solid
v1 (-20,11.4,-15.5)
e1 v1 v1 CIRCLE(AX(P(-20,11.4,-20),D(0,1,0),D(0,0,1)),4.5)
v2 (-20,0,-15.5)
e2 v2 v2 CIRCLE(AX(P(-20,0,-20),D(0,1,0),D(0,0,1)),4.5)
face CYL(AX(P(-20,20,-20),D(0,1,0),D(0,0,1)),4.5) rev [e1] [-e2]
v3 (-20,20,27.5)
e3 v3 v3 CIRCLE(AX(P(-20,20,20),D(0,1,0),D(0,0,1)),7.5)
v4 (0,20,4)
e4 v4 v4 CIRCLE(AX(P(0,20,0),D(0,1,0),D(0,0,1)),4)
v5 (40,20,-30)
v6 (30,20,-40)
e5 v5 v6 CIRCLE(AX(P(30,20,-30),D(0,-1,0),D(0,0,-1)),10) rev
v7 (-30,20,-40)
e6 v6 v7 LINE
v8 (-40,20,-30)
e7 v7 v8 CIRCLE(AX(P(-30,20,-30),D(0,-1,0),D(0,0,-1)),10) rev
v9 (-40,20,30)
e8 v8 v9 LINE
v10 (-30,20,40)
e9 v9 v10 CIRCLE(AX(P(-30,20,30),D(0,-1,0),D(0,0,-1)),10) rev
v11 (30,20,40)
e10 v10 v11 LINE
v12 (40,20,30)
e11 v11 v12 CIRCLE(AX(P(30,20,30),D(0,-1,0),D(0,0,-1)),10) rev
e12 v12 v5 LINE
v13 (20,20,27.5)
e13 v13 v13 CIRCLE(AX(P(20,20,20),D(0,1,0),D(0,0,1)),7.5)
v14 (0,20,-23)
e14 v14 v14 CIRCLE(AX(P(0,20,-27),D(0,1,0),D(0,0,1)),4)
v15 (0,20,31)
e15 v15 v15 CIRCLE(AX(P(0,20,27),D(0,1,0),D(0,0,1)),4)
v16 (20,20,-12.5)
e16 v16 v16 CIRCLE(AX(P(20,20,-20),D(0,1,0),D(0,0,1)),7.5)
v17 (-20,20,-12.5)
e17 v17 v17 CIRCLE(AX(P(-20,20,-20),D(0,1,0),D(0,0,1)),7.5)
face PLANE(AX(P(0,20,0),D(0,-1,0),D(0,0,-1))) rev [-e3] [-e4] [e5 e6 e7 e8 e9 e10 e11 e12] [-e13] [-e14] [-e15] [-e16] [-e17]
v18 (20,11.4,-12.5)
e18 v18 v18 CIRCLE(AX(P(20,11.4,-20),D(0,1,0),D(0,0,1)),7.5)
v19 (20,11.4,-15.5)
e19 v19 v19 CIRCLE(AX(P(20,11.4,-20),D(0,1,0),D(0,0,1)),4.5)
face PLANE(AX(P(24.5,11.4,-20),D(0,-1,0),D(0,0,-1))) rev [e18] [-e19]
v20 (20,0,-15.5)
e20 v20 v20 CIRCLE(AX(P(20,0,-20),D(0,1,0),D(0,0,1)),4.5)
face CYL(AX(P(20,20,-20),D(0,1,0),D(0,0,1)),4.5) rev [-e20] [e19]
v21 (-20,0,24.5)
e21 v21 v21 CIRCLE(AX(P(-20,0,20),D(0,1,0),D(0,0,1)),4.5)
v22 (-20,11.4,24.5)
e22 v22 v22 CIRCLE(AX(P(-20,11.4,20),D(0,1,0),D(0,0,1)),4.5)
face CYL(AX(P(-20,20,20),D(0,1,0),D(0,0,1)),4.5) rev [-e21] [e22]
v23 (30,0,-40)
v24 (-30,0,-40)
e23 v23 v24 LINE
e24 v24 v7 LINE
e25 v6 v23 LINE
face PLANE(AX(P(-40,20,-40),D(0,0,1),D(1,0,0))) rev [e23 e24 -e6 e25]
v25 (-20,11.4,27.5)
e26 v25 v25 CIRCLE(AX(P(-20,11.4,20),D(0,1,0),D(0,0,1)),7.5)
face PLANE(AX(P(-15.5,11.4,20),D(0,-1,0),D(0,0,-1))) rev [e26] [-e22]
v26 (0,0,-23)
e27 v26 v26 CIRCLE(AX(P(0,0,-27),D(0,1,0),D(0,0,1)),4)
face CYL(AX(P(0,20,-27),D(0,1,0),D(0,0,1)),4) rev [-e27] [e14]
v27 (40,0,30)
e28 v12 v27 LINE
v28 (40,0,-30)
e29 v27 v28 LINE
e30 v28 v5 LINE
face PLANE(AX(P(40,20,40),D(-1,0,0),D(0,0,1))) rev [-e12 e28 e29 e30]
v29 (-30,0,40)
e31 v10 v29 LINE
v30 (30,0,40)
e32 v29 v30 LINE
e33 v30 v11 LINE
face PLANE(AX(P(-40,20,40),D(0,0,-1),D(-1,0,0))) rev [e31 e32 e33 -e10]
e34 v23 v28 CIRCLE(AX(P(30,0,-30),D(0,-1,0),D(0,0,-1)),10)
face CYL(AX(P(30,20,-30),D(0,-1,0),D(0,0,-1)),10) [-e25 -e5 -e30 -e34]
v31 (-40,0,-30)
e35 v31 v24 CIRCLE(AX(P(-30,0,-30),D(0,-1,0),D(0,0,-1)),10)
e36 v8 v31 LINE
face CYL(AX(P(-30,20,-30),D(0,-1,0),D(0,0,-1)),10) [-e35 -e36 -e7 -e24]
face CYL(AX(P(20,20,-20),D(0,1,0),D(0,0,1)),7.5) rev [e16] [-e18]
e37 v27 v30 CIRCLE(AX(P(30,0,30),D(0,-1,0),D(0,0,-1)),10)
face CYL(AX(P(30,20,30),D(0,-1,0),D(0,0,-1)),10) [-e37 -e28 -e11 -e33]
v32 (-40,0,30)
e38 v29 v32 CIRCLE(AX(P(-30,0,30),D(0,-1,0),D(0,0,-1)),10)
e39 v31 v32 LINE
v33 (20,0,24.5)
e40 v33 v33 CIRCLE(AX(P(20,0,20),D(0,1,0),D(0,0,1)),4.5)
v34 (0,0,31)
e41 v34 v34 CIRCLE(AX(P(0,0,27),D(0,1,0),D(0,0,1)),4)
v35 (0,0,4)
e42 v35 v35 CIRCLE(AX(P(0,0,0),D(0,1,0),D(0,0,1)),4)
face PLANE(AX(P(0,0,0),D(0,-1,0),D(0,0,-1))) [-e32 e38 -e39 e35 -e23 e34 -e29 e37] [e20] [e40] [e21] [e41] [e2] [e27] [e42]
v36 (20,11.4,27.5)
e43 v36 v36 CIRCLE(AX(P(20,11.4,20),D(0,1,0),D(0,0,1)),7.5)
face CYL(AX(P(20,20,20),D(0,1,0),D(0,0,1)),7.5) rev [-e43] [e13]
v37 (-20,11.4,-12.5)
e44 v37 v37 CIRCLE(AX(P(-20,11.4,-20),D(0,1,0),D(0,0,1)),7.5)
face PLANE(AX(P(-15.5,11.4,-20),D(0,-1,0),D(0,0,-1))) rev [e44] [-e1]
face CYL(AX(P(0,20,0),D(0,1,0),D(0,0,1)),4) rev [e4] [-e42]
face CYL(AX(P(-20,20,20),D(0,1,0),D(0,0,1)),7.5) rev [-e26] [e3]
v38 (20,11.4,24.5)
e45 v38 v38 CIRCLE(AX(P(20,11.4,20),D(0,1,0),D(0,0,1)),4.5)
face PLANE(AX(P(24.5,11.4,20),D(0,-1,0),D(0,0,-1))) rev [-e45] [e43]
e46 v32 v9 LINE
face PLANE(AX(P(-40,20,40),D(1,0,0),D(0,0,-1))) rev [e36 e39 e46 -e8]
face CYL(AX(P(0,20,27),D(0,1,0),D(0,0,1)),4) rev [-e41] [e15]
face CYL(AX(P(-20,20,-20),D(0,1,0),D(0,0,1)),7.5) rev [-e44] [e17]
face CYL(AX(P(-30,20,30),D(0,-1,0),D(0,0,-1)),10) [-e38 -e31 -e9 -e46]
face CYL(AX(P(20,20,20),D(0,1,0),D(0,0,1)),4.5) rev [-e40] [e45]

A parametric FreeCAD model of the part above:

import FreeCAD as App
import Part
import Sketcher
from FreeCAD import Vector


def edges_at(feature, points):
    """Names of the edges that pass closest to the given points."""
    edges = feature.Shape.Edges
    near = lambda p: min(range(len(edges)), key=lambda i: edges[i].distToShape(Part.Vertex(*p))[0])
    return sorted({f"Edge{near(p) + 1}" for p in points})


def add_polygon(sketch, points):
    """Adds a closed chain of lines whose ends are joined by coincident constraints."""
    first, n = sketch.GeometryCount, len(points)
    for a, b in zip(points, points[1:] + points[:1]):
        sketch.addGeometry(Part.LineSegment(App.Vector(*a, 0), App.Vector(*b, 0)), False)
    for i in range(n):
        sketch.addConstraint(Sketcher.Constraint("Coincident", first + i, 2, first + (i + 1) % n, 1))

doc = App.newDocument("Part")
body = doc.addObject("PartDesign::Body", "Body")

sketch1 = body.newObject("Sketcher::SketchObject", "Sketch")
sketch1.AttachmentSupport = (doc.getObject("XZ_Plane"), [""])
sketch1.MapMode = "FlatFace"
add_polygon(sketch1, [(-40, -40), (-40, 40), (40, 40), (40, -40)])
sketch1.addConstraint(Sketcher.Constraint("Vertical", 0))
sketch1.addConstraint(Sketcher.Constraint("Horizontal", 1))
sketch1.addConstraint(Sketcher.Constraint("Vertical", 2))
sketch1.addConstraint(Sketcher.Constraint("Horizontal", 3))
sketch1.addConstraint(Sketcher.Constraint("Symmetric", 0, 2, 2, 2, -1, 1))
sketch1.addConstraint(Sketcher.Constraint("Equal", 3, 0))
sketch1.addConstraint(Sketcher.Constraint("DistanceX", 1, 1, 1, 2, 80.0))
pad1 = body.newObject("PartDesign::Pad", "Pad")
pad1.Profile = sketch1
pad1.Length = 20
pad1.Reversed = True

sketch2 = body.newObject("Sketcher::SketchObject", "Sketch001")
sketch2.AttachmentSupport = (doc.getObject("XZ_Plane"), [""])
sketch2.MapMode = "FlatFace"
sketch2.AttachmentOffset = App.Placement(Vector(0, 0, -20), App.Rotation())
sketch2.addGeometry(Part.Circle(Vector(-20, -20, 0), Vector(0, 0, 1), 4.5), False)
sketch2.addGeometry(Part.Circle(Vector(20, -20, 0), Vector(0, 0, 1), 4.5), False)
sketch2.addGeometry(Part.Circle(Vector(20, 20, 0), Vector(0, 0, 1), 4.5), False)
sketch2.addGeometry(Part.Circle(Vector(-20, 20, 0), Vector(0, 0, 1), 4.5), False)
sketch2.addConstraint(Sketcher.Constraint("Equal", 0, 1))
sketch2.addConstraint(Sketcher.Constraint("Equal", 1, 2))
sketch2.addConstraint(Sketcher.Constraint("Equal", 2, 3))
sketch2.addConstraint(Sketcher.Constraint("Symmetric", 0, 3, 2, 3, -1, 1))
sketch2.addConstraint(Sketcher.Constraint("Symmetric", 1, 3, 3, 3, -1, 1))
sketch2.addConstraint(Sketcher.Constraint("Symmetric", 0, 3, 1, 3, -2))
sketch2.addConstraint(Sketcher.Constraint("Diameter", 0, 9.0))
sketch2.addConstraint(Sketcher.Constraint("DistanceX", 0, 3, -1, 1, 20.0))
sketch2.addConstraint(Sketcher.Constraint("DistanceY", 0, 3, -1, 1, 20.0))
doc.recompute()
hole = body.newObject("PartDesign::Hole", "Hole")
hole.Profile = sketch2
hole.ThreadType = "None"
hole.Diameter = 9
hole.DepthType = "ThroughAll"
hole.HoleCutType = "Counterbore"
hole.HoleCutDiameter = 15
hole.HoleCutDepth = 8.6
hole.Reversed = True

sketch3 = body.newObject("Sketcher::SketchObject", "Sketch002")
sketch3.AttachmentSupport = (doc.getObject("XZ_Plane"), [""])
sketch3.MapMode = "FlatFace"
sketch3.AttachmentOffset = App.Placement(Vector(0, 0, -20), App.Rotation())
sketch3.addGeometry(Part.Circle(Vector(0, -27, 0), Vector(0, 0, 1), 4), False)
sketch3.addGeometry(Part.Circle(Vector(0, 0, 0), Vector(0, 0, 1), 4), False)
sketch3.addGeometry(Part.Circle(Vector(0, 27, 0), Vector(0, 0, 1), 4), False)
sketch3.addConstraint(Sketcher.Constraint("Coincident", 1, 3, -1, 1))
sketch3.addConstraint(Sketcher.Constraint("Equal", 0, 1))
sketch3.addConstraint(Sketcher.Constraint("Equal", 1, 2))
sketch3.addConstraint(Sketcher.Constraint("Symmetric", 0, 3, 2, 3, -1, 1))
sketch3.addConstraint(Sketcher.Constraint("PointOnObject", 0, 3, -2))
sketch3.addConstraint(Sketcher.Constraint("Diameter", 0, 8.0))
sketch3.addConstraint(Sketcher.Constraint("DistanceY", 0, 3, -1, 1, 27.0))
doc.recompute()
hole2 = body.newObject("PartDesign::Hole", "Hole001")
hole2.Profile = sketch3
hole2.ThreadType = "None"
hole2.Diameter = 8
hole2.DepthType = "ThroughAll"
hole2.Reversed = True
doc.recompute()

fillet = body.newObject("PartDesign::Fillet", "Fillet")
fillet.Base = (hole2, edges_at(hole2, [
    (40, 10, 40),
    (-40, 10, 40),
    (-40, 10, -40),
    (40, 10, -40),
]))
fillet.Radius = 10

doc.recompute()
